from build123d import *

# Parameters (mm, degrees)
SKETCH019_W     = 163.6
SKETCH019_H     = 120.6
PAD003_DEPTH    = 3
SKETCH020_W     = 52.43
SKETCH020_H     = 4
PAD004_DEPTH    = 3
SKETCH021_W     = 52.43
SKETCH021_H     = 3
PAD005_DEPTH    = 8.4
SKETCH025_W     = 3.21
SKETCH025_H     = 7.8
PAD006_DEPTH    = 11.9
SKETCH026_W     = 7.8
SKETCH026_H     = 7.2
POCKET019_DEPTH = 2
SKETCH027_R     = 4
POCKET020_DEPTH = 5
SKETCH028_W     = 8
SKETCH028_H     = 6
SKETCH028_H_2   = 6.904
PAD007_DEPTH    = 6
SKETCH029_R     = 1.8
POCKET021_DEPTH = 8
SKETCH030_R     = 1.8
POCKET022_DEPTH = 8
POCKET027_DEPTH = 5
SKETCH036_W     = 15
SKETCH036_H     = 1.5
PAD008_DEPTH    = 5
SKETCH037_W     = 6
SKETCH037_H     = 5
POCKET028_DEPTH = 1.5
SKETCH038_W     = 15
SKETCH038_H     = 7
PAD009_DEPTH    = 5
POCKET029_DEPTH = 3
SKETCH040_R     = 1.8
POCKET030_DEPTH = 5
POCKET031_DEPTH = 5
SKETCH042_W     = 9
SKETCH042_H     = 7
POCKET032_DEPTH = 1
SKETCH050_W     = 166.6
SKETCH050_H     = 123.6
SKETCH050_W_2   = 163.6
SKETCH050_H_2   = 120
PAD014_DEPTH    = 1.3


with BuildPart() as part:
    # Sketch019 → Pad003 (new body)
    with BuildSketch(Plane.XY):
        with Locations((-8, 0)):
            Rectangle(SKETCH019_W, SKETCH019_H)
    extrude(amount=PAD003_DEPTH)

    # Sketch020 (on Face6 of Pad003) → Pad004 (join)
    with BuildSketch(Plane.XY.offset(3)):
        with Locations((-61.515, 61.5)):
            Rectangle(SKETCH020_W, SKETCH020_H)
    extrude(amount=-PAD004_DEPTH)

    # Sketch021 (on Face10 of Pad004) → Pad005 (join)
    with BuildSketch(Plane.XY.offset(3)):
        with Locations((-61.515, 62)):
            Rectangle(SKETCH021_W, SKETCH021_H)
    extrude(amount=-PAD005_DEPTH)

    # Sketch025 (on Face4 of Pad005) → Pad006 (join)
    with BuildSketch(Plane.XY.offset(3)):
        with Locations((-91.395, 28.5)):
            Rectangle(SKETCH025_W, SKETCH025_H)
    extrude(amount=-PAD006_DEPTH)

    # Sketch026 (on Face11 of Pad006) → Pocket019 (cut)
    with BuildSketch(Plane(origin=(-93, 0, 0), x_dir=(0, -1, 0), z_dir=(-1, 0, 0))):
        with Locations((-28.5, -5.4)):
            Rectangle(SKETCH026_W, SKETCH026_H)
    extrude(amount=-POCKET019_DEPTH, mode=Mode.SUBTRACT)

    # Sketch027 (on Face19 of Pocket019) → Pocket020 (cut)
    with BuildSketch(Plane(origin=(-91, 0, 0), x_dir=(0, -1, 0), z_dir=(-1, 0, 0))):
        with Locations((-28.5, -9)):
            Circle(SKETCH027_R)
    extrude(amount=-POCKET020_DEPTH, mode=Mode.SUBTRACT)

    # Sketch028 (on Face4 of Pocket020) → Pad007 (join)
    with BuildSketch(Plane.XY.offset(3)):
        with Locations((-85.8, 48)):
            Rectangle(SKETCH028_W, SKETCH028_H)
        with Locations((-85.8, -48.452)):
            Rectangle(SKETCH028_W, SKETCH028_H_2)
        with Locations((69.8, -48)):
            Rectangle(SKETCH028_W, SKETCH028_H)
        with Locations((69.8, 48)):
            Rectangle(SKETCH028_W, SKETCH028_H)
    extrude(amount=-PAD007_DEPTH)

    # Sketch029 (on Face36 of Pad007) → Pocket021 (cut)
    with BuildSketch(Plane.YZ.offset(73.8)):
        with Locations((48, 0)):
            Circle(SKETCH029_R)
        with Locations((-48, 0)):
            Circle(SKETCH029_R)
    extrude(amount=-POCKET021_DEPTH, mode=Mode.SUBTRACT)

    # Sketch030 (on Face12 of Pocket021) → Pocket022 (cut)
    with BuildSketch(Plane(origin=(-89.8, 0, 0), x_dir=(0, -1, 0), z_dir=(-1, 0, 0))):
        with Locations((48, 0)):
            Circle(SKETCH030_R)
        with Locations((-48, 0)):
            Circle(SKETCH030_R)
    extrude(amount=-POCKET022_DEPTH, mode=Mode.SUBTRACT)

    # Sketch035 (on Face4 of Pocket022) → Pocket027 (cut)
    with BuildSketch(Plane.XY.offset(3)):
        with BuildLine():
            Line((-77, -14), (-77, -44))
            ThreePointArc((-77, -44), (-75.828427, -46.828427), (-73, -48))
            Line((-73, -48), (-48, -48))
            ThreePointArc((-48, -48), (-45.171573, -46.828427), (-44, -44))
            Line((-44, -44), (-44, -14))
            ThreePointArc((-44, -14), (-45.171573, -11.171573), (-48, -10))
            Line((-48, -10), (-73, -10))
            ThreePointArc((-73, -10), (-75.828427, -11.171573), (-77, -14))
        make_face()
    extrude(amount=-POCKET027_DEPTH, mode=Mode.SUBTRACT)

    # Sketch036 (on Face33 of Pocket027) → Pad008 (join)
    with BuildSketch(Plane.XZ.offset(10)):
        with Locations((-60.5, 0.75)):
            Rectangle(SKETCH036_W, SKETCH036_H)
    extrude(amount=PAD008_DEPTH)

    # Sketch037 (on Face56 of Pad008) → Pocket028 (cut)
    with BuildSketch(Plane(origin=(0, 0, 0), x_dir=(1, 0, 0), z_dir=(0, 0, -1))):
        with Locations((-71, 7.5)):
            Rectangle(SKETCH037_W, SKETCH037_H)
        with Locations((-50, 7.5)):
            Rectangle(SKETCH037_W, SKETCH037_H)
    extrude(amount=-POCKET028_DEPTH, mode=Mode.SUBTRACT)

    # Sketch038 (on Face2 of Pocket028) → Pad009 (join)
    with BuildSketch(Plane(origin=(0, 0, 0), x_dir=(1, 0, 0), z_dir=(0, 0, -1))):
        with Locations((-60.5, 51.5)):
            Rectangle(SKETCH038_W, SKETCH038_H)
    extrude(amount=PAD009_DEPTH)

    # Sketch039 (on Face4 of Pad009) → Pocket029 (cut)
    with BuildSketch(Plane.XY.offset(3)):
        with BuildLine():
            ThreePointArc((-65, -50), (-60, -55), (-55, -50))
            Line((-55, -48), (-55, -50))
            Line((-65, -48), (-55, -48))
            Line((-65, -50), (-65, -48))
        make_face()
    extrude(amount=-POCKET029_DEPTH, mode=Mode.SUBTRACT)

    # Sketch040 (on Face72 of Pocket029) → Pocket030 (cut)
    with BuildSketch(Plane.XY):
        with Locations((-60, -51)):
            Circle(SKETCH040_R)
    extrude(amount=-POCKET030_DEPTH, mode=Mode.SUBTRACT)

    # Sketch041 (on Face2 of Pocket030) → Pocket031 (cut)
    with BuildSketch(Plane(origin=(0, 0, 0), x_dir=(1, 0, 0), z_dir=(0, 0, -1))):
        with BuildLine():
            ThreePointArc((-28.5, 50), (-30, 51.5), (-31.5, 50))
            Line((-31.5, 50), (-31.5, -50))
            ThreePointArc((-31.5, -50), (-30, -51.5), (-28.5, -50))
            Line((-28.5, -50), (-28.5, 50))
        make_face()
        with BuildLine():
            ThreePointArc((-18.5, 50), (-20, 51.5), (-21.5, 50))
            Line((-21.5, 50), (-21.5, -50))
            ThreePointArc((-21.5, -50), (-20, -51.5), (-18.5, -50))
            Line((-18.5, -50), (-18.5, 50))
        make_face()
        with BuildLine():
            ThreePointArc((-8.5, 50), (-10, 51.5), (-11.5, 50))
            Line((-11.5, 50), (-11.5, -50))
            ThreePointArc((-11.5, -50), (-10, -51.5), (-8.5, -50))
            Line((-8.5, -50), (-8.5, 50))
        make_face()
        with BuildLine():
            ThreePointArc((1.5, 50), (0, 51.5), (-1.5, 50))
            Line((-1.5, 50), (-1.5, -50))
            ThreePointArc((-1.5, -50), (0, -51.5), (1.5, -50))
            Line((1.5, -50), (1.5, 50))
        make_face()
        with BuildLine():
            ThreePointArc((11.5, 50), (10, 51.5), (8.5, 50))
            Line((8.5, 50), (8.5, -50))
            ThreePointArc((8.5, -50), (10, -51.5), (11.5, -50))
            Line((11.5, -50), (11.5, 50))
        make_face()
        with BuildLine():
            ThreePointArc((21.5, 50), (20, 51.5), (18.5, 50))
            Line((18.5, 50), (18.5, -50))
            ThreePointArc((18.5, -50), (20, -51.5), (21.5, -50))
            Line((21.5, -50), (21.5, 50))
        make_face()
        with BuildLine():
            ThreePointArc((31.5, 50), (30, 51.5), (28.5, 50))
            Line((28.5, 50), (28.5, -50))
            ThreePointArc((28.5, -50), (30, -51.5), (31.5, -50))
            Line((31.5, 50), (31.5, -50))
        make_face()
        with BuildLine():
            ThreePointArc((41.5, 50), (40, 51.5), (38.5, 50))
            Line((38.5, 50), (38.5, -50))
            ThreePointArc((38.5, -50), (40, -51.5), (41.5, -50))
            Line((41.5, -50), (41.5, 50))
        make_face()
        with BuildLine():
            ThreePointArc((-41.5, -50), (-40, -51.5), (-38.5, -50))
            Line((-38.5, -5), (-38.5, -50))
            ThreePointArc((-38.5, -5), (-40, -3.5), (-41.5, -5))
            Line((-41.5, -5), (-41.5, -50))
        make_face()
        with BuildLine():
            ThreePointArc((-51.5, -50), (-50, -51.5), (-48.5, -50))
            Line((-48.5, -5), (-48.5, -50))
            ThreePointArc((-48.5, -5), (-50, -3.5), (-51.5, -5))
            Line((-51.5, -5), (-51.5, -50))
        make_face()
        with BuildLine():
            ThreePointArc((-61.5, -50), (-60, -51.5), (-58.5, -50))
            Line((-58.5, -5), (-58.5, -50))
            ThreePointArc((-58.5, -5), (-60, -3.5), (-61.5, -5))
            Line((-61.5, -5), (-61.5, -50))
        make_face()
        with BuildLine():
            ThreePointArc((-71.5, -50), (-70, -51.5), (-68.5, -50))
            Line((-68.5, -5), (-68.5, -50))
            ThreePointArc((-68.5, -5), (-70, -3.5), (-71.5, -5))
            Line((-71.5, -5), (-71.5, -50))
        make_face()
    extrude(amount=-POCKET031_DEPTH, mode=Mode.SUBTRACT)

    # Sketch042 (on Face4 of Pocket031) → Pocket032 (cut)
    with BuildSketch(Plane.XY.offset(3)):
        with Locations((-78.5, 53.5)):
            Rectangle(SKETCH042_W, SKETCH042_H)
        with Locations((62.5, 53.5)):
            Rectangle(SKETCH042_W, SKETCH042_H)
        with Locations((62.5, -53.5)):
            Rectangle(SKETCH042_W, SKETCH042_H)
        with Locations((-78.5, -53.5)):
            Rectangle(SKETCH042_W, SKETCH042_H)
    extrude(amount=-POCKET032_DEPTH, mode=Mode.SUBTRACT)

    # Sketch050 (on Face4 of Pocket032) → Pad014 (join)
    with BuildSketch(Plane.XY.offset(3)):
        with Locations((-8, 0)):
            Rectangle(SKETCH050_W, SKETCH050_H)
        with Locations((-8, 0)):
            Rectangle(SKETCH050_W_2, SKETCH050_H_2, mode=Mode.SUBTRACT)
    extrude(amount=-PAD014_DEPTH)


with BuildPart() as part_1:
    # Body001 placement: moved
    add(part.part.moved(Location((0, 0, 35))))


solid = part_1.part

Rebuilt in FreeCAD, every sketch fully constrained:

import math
import FreeCAD as App
import Part
import Sketcher
Q = App.Units.Quantity


def add_polygon(sketch, points):
    """Adds a closed chain of lines whose ends are joined by coincident constraints."""
    first, n = sketch.GeometryCount, len(points)
    for a, b in zip(points, points[1:] + points[:1]):
        sketch.addGeometry(Part.LineSegment(App.Vector(*a, 0), App.Vector(*b, 0)), False)
    for i in range(n):
        sketch.addConstraint(Sketcher.Constraint("Coincident", first + i, 2, first + (i + 1) % n, 1))

doc = App.newDocument("Part")
body = doc.addObject("PartDesign::Body", "Body")

# Sketch on XY plane
sketch1 = doc.addObject("Sketcher::SketchObject", "Sketch")
body.addObject(sketch1)
sketch1.AttachmentSupport = (doc.XY_Plane, [""])
sketch1.MapMode = "FlatFace"
add_polygon(sketch1, [(-90, 60), (-90, -60), (74, -60), (74, 60)])  # lines 0-3
sketch1.addConstraint([
    Sketcher.Constraint("Vertical", 0),
    Sketcher.Constraint("Horizontal", 1),
    Sketcher.Constraint("Vertical", 2),
    Sketcher.Constraint("Horizontal", 3),
    Sketcher.Constraint("DistanceX", 1, 1, 1, 2, Q("163.6 mm")),
    Sketcher.Constraint("DistanceY", 0, 2, 0, 1, Q("120.6 mm")),
    Sketcher.Constraint("DistanceX", 0, 2, -1, 1, Q("89.8 mm")),
    Sketcher.Constraint("DistanceY", 0, 2, -1, 1, Q("60.3 mm")),
])
pad1 = doc.addObject("PartDesign::Pad", "Pad")
body.addObject(pad1)
pad1.Profile = sketch1
pad1.Length = 3

# Sketch on XY plane
sketch2 = doc.addObject("Sketcher::SketchObject", "Sketch001")
body.addObject(sketch2)
sketch2.AttachmentSupport = (doc.XY_Plane, [""])
sketch2.MapMode = "FlatFace"
sketch2.AttachmentOffset = App.Placement(App.Vector(0, 0, 3), App.Rotation())
add_polygon(sketch2, [(-87.7, 63.5), (-87.7, 59.5), (-35.3, 59.5), (-35.3, 63.5)])  # lines 0-3
sketch2.addConstraint([
    Sketcher.Constraint("Vertical", 0),
    Sketcher.Constraint("Horizontal", 1),
    Sketcher.Constraint("Vertical", 2),
    Sketcher.Constraint("Horizontal", 3),
    Sketcher.Constraint("DistanceY", 0, 2, 0, 1, Q("4 mm")),
    Sketcher.Constraint("DistanceX", 1, 1, 1, 2, Q("52.43 mm")),
    Sketcher.Constraint("DistanceY", -1, 1, 0, 2, Q("59.5 mm")),
    Sketcher.Constraint("DistanceX", 1, 2, -1, 1, Q("35.3 mm")),
])
pad2 = doc.addObject("PartDesign::Pad", "Pad001")
body.addObject(pad2)
pad2.Profile = sketch2
pad2.Length = 3
pad2.Reversed = True

# Sketch on XY plane
sketch3 = doc.addObject("Sketcher::SketchObject", "Sketch002")
body.addObject(sketch3)
sketch3.AttachmentSupport = (doc.XY_Plane, [""])
sketch3.MapMode = "FlatFace"
sketch3.AttachmentOffset = App.Placement(App.Vector(0, 0, 3), App.Rotation())
add_polygon(sketch3, [(-87.7, 63.5), (-87.7, 60.5), (-35.3, 60.5), (-35.3, 63.5)])  # lines 0-3
sketch3.addConstraint([
    Sketcher.Constraint("Vertical", 0),
    Sketcher.Constraint("Horizontal", 1),
    Sketcher.Constraint("Vertical", 2),
    Sketcher.Constraint("Horizontal", 3),
    Sketcher.Constraint("DistanceY", 0, 2, 0, 1, Q("3 mm")),
    Sketcher.Constraint("DistanceX", 1, 1, 1, 2, Q("52.43 mm")),
    Sketcher.Constraint("DistanceY", -1, 1, 0, 2, Q("60.5 mm")),
    Sketcher.Constraint("DistanceX", 1, 2, -1, 1, Q("35.3 mm")),
])
pad3 = doc.addObject("PartDesign::Pad", "Pad002")
body.addObject(pad3)
pad3.Profile = sketch3
pad3.Length = 8.4
pad3.Reversed = True

# Sketch on XY plane
sketch4 = doc.addObject("Sketcher::SketchObject", "Sketch003")
body.addObject(sketch4)
sketch4.AttachmentSupport = (doc.XY_Plane, [""])
sketch4.MapMode = "FlatFace"
sketch4.AttachmentOffset = App.Placement(App.Vector(0, 0, 3), App.Rotation())
add_polygon(sketch4, [(-93, 32.4), (-93, 24.6), (-89.8, 24.6), (-89.8, 32.4)])  # lines 0-3
sketch4.addConstraint([
    Sketcher.Constraint("Vertical", 0),
    Sketcher.Constraint("Horizontal", 1),
    Sketcher.Constraint("Vertical", 2),
    Sketcher.Constraint("Horizontal", 3),
    Sketcher.Constraint("DistanceY", 0, 2, 0, 1, Q("7.8 mm")),
    Sketcher.Constraint("DistanceX", 0, 2, -1, 1, Q("93 mm")),
    Sketcher.Constraint("DistanceX", 1, 1, 1, 2, Q("3.21 mm")),
    Sketcher.Constraint("DistanceY", -1, 1, 0, 2, Q("24.6 mm")),
])
pad4 = doc.addObject("PartDesign::Pad", "Pad003")
body.addObject(pad4)
pad4.Profile = sketch4
pad4.Length = 11.9
pad4.Reversed = True

# Sketch on YZ plane
sketch5 = doc.addObject("Sketcher::SketchObject", "Sketch004")
body.addObject(sketch5)
sketch5.AttachmentSupport = (doc.YZ_Plane, [""])
sketch5.MapMode = "FlatFace"
sketch5.AttachmentOffset = App.Placement(App.Vector(0, 0, -93), App.Rotation())
add_polygon(sketch5, [(32, -2), (32, -9), (25, -9), (25, -2)])  # lines 0-3
sketch5.addConstraint([
    Sketcher.Constraint("Vertical", 0),
    Sketcher.Constraint("Horizontal", 1),
    Sketcher.Constraint("Vertical", 2),
    Sketcher.Constraint("Horizontal", 3),
    Sketcher.Constraint("DistanceX", 1, 2, 1, 1, Q("7.8 mm")),
    Sketcher.Constraint("DistanceY", 0, 2, 0, 1, Q("7.2 mm")),
    Sketcher.Constraint("DistanceY", 0, 2, -1, 1, Q("9 mm")),
    Sketcher.Constraint("DistanceX", -1, 1, 0, 2, Q("32.4 mm")),
])
pocket1 = doc.addObject("PartDesign::Pocket", "Pocket")
body.addObject(pocket1)
pocket1.Profile = sketch5
pocket1.Length = 2
pocket1.Reversed = True

# Sketch on YZ plane
sketch6 = doc.addObject("Sketcher::SketchObject", "Sketch005")
body.addObject(sketch6)
sketch6.AttachmentSupport = (doc.YZ_Plane, [""])
sketch6.MapMode = "FlatFace"
sketch6.AttachmentOffset = App.Placement(App.Vector(0, 0, -91), App.Rotation())
sketch6.addGeometry(Part.Circle(App.Vector(28.5, -9, 0), App.Vector(0, 0, 1), 4), False)
sketch6.addConstraint([
    Sketcher.Constraint("Diameter", 0, Q("8 mm")),
    Sketcher.Constraint("DistanceY", 0, 3, -1, 1, Q("9 mm")),
    Sketcher.Constraint("DistanceX", -1, 1, 0, 3, Q("28.5 mm")),
])
pocket2 = doc.addObject("PartDesign::Pocket", "Pocket001")
body.addObject(pocket2)
pocket2.Profile = sketch6
pocket2.Length = 5
pocket2.Reversed = True

# Sketch on XY plane
sketch7 = doc.addObject("Sketcher::SketchObject", "Sketch006")
body.addObject(sketch7)
sketch7.AttachmentSupport = (doc.XY_Plane, [""])
sketch7.MapMode = "FlatFace"
sketch7.AttachmentOffset = App.Placement(App.Vector(0, 0, 3), App.Rotation())
add_polygon(sketch7, [(-90, 51), (-90, 45), (-82, 45), (-82, 51)])  # lines 0-3
add_polygon(sketch7, [(-90, -45), (-90, -52), (-82, -52), (-82, -45)])  # lines 4-7
add_polygon(sketch7, [(66, -45), (66, -51), (74, -51), (74, -45)])  # lines 8-11
add_polygon(sketch7, [(66, 51), (66, 45), (74, 45), (74, 51)])  # lines 12-15
sketch7.addConstraint([
    Sketcher.Constraint("Vertical", 0),
    Sketcher.Constraint("Horizontal", 1),
    Sketcher.Constraint("Vertical", 2),
    Sketcher.Constraint("Horizontal", 3),
    Sketcher.Constraint("Vertical", 4),
    Sketcher.Constraint("Horizontal", 5),
    Sketcher.Constraint("Vertical", 6),
    Sketcher.Constraint("Horizontal", 7),
    Sketcher.Constraint("Vertical", 8),
    Sketcher.Constraint("Horizontal", 9),
    Sketcher.Constraint("Vertical", 10),
    Sketcher.Constraint("Horizontal", 11),
    Sketcher.Constraint("Vertical", 12),
    Sketcher.Constraint("Horizontal", 13),
    Sketcher.Constraint("Vertical", 14),
    Sketcher.Constraint("Horizontal", 15),
    Sketcher.Constraint("Symmetric", 1, 2, 6, 2, -1),
    Sketcher.Constraint("Symmetric", 11, 2, 12, 2, -1),
    Sketcher.Constraint("Symmetric", 9, 2, 14, 2, -1),
    Sketcher.Constraint("Horizontal", 7, 2, 10, 2),
    Sketcher.Constraint("Horizontal", 3, 2, 14, 2),
    Sketcher.Constraint("Vertical", 3, 2, 4, 2),
    Sketcher.Constraint("Equal", 7, 9),
    Sketcher.Constraint("DistanceX", 1, 1, 1, 2, Q("8 mm")),
    Sketcher.Constraint("DistanceY", 0, 2, 0, 1, Q("6 mm")),
    Sketcher.Constraint("DistanceY", -1, 1, 0, 2, Q("45 mm")),
    Sketcher.Constraint("DistanceX", 0, 2, -1, 1, Q("89.8 mm")),
    Sketcher.Constraint("DistanceX", -1, 1, 8, 2, Q("65.8 mm")),
    Sketcher.Constraint("DistanceY", 4, 2, 4, 1, Q("6.904 mm")),
])
pad5 = doc.addObject("PartDesign::Pad", "Pad004")
body.addObject(pad5)
pad5.Profile = sketch7
pad5.Length = 6
pad5.Reversed = True

# Sketch on YZ plane
sketch8 = doc.addObject("Sketcher::SketchObject", "Sketch007")
body.addObject(sketch8)
sketch8.AttachmentSupport = (doc.YZ_Plane, [""])
sketch8.MapMode = "FlatFace"
sketch8.AttachmentOffset = App.Placement(App.Vector(0, 0, 73.8), App.Rotation())
sketch8.addGeometry([
    Part.Circle(App.Vector(48, 0, 0), App.Vector(0, 0, 1), 1.8),
    Part.Circle(App.Vector(-48, 0, 0), App.Vector(0, 0, 1), 1.8),
], False)
sketch8.addConstraint([
    Sketcher.Constraint("Equal", 0, 1),
    Sketcher.Constraint("Symmetric", 0, 3, 1, 3, -1, 1),
    Sketcher.Constraint("PointOnObject", 0, 3, -1),
    Sketcher.Constraint("Diameter", 0, Q("3.6 mm")),
    Sketcher.Constraint("DistanceX", -1, 1, 0, 3, Q("48 mm")),
])
pocket3 = doc.addObject("PartDesign::Pocket", "Pocket002")
body.addObject(pocket3)
pocket3.Profile = sketch8
pocket3.Length = 8

# Sketch on YZ plane
sketch9 = doc.addObject("Sketcher::SketchObject", "Sketch008")
body.addObject(sketch9)
sketch9.AttachmentSupport = (doc.YZ_Plane, [""])
sketch9.MapMode = "FlatFace"
sketch9.AttachmentOffset = App.Placement(App.Vector(0, 0, -89.8), App.Rotation())
sketch9.addGeometry([
    Part.Circle(App.Vector(-48, 0, 0), App.Vector(0, 0, 1), 1.8),
    Part.Circle(App.Vector(48, 0, 0), App.Vector(0, 0, 1), 1.8),
], False)
sketch9.addConstraint([
    Sketcher.Constraint("Equal", 0, 1),
    Sketcher.Constraint("Symmetric", 0, 3, 1, 3, -1, 1),
    Sketcher.Constraint("PointOnObject", 0, 3, -1),
    Sketcher.Constraint("Diameter", 0, Q("3.6 mm")),
    Sketcher.Constraint("DistanceX", 0, 3, -1, 1, Q("48 mm")),
])
pocket4 = doc.addObject("PartDesign::Pocket", "Pocket003")
body.addObject(pocket4)
pocket4.Profile = sketch9
pocket4.Length = 8
pocket4.Reversed = True

# Sketch on XY plane
sketch10 = doc.addObject("Sketcher::SketchObject", "Sketch009")
body.addObject(sketch10)
sketch10.AttachmentSupport = (doc.XY_Plane, [""])
sketch10.MapMode = "FlatFace"
sketch10.AttachmentOffset = App.Placement(App.Vector(0, 0, 3), App.Rotation())
sketch10.addGeometry([
    Part.LineSegment(App.Vector(-77, -14, 0), App.Vector(-77, -44, 0)),  # 0
    Part.ArcOfCircle(Part.Circle(App.Vector(-73, -44, 0), App.Vector(0, 0, 1), 4), math.radians(-180), math.radians(-90)),  # 1
    Part.LineSegment(App.Vector(-73, -48, 0), App.Vector(-48, -48, 0)),  # 2
    Part.ArcOfCircle(Part.Circle(App.Vector(-48, -44, 0), App.Vector(0, 0, 1), 4), math.radians(-90), math.radians(0)),  # 3
    Part.LineSegment(App.Vector(-44, -44, 0), App.Vector(-44, -14, 0)),  # 4
    Part.ArcOfCircle(Part.Circle(App.Vector(-48, -14, 0), App.Vector(0, 0, 1), 4), math.radians(0), math.radians(90)),  # 5
    Part.LineSegment(App.Vector(-48, -10, 0), App.Vector(-73, -10, 0)),  # 6
    Part.ArcOfCircle(Part.Circle(App.Vector(-73, -14, 0), App.Vector(0, 0, 1), 4), math.radians(90), math.radians(180)),  # 7
], False)
sketch10.addConstraint([
    Sketcher.Constraint("Tangent", 0, 2, 1, 1),
    Sketcher.Constraint("Tangent", 1, 2, 2, 1),
    Sketcher.Constraint("Tangent", 2, 2, 3, 1),
    Sketcher.Constraint("Tangent", 3, 2, 4, 1),
    Sketcher.Constraint("Tangent", 4, 2, 5, 1),
    Sketcher.Constraint("Tangent", 5, 2, 6, 1),
    Sketcher.Constraint("Tangent", 6, 2, 7, 1),
    Sketcher.Constraint("Tangent", 7, 2, 0, 1),
    Sketcher.Constraint("Vertical", 0),
    Sketcher.Constraint("Horizontal", 2),
    Sketcher.Constraint("Vertical", 4),
    Sketcher.Constraint("Horizontal", 6),
    Sketcher.Constraint("Equal", 1, 3),
    Sketcher.Constraint("Equal", 3, 5),
    Sketcher.Constraint("Equal", 5, 7),
    Sketcher.Constraint("Radius", 1, Q("4 mm")),
    Sketcher.Constraint("DistanceX", 2, 1, 2, 2, Q("25 mm")),
    Sketcher.Constraint("DistanceY", 0, 2, 0, 1, Q("30 mm")),
    Sketcher.Constraint("DistanceX", 1, 3, -1, 1, Q("73 mm")),
    Sketcher.Constraint("DistanceY", 1, 3, -1, 1, Q("44 mm")),
])
pocket5 = doc.addObject("PartDesign::Pocket", "Pocket004")
body.addObject(pocket5)
pocket5.Profile = sketch10
pocket5.Length = 5

# Sketch on XZ plane
sketch11 = doc.addObject("Sketcher::SketchObject", "Sketch010")
body.addObject(sketch11)
sketch11.AttachmentSupport = (doc.XZ_Plane, [""])
sketch11.MapMode = "FlatFace"
sketch11.AttachmentOffset = App.Placement(App.Vector(0, 0, 10), App.Rotation())
add_polygon(sketch11, [(-68, 1.5), (-68, 0), (-53, 0), (-53, 1.5)])  # lines 0-3
sketch11.addConstraint([
    Sketcher.Constraint("Vertical", 0),
    Sketcher.Constraint("Horizontal", 1),
    Sketcher.Constraint("Vertical", 2),
    Sketcher.Constraint("Horizontal", 3),
    Sketcher.Constraint("PointOnObject", 0, 2, -1),
    Sketcher.Constraint("DistanceX", 1, 1, 1, 2, Q("15 mm")),
    Sketcher.Constraint("DistanceY", 0, 2, 0, 1, Q("1.5 mm")),
    Sketcher.Constraint("DistanceX", 0, 2, -1, 1, Q("68 mm")),
])
pad6 = doc.addObject("PartDesign::Pad", "Pad005")
body.addObject(pad6)
pad6.Profile = sketch11
pad6.Length = 5

# Sketch on XY plane
sketch12 = doc.addObject("Sketcher::SketchObject", "Sketch011")
body.addObject(sketch12)
sketch12.AttachmentSupport = (doc.XY_Plane, [""])
sketch12.MapMode = "FlatFace"
add_polygon(sketch12, [(-74, -10), (-74, -5), (-68, -5), (-68, -10)])  # lines 0-3
add_polygon(sketch12, [(-53, -10), (-53, -5), (-47, -5), (-47, -10)])  # lines 4-7
sketch12.addConstraint([
    Sketcher.Constraint("Vertical", 0),
    Sketcher.Constraint("Horizontal", 1),
    Sketcher.Constraint("Vertical", 2),
    Sketcher.Constraint("Horizontal", 3),
    Sketcher.Constraint("Vertical", 4),
    Sketcher.Constraint("Horizontal", 5),
    Sketcher.Constraint("Vertical", 6),
    Sketcher.Constraint("Horizontal", 7),
    Sketcher.Constraint("Horizontal", 1, 2, 4, 2),
    Sketcher.Constraint("Horizontal", 3, 2, 6, 2),
    Sketcher.Constraint("Equal", 3, 5),
    Sketcher.Constraint("DistanceX", 1, 1, 1, 2, Q("6 mm")),
    Sketcher.Constraint("DistanceY", 0, 1, 0, 2, Q("5 mm")),
    Sketcher.Constraint("DistanceX", 0, 2, -1, 1, Q("74 mm")),
    Sketcher.Constraint("DistanceY", 0, 2, -1, 1, Q("5 mm")),
    Sketcher.Constraint("DistanceX", 4, 2, -1, 1, Q("53 mm")),
])
pocket6 = doc.addObject("PartDesign::Pocket", "Pocket005")
body.addObject(pocket6)
pocket6.Profile = sketch12
pocket6.Length = 1.5
pocket6.Reversed = True

# Sketch on XY plane
sketch13 = doc.addObject("Sketcher::SketchObject", "Sketch012")
body.addObject(sketch13)
sketch13.AttachmentSupport = (doc.XY_Plane, [""])
sketch13.MapMode = "FlatFace"
add_polygon(sketch13, [(-68, -55), (-68, -48), (-53, -48), (-53, -55)])  # lines 0-3
sketch13.addConstraint([
    Sketcher.Constraint("Vertical", 0),
    Sketcher.Constraint("Horizontal", 1),
    Sketcher.Constraint("Vertical", 2),
    Sketcher.Constraint("Horizontal", 3),
    Sketcher.Constraint("DistanceX", 1, 1, 1, 2, Q("15 mm")),
    Sketcher.Constraint("DistanceY", 0, 1, 0, 2, Q("7 mm")),
    Sketcher.Constraint("DistanceX", 0, 2, -1, 1, Q("68 mm")),
    Sketcher.Constraint("DistanceY", 0, 2, -1, 1, Q("48 mm")),
])
pad7 = doc.addObject("PartDesign::Pad", "Pad006")
body.addObject(pad7)
pad7.Profile = sketch13
pad7.Length = 5
pad7.Reversed = True

# Sketch on XY plane
sketch14 = doc.addObject("Sketcher::SketchObject", "Sketch013")
body.addObject(sketch14)
sketch14.AttachmentSupport = (doc.XY_Plane, [""])
sketch14.MapMode = "FlatFace"
sketch14.AttachmentOffset = App.Placement(App.Vector(0, 0, 3), App.Rotation())
sketch14.addGeometry([
    Part.ArcOfCircle(Part.Circle(App.Vector(-60, -50, 0), App.Vector(0, 0, 1), 5), math.radians(180), math.radians(360)),
    Part.LineSegment(App.Vector(-55, -50, 0), App.Vector(-55, -48, 0)),
    Part.LineSegment(App.Vector(-55, -48, 0), App.Vector(-65, -48, 0)),
    Part.LineSegment(App.Vector(-65, -48, 0), App.Vector(-65, -50, 0)),
], False)
sketch14.addConstraint([
    Sketcher.Constraint("Tangent", 0, 2, 1, 1),
    Sketcher.Constraint("Coincident", 1, 2, 2, 1),
    Sketcher.Constraint("Coincident", 2, 2, 3, 1),
    Sketcher.Constraint("Tangent", 3, 2, 0, 1),
    Sketcher.Constraint("Vertical", 1),
    Sketcher.Constraint("Horizontal", 2),
    Sketcher.Constraint("Vertical", 3),
    Sketcher.Constraint("Radius", 0, Q("5 mm")),
    Sketcher.Constraint("DistanceY", 1, 1, 1, 2, Q("2 mm")),
    Sketcher.Constraint("DistanceX", 0, 3, -1, 1, Q("60 mm")),
    Sketcher.Constraint("DistanceY", 0, 3, -1, 1, Q("50 mm")),
])
pocket7 = doc.addObject("PartDesign::Pocket", "Pocket006")
body.addObject(pocket7)
pocket7.Profile = sketch14
pocket7.Length = 3

# Sketch on XY plane
sketch15 = doc.addObject("Sketcher::SketchObject", "Sketch014")
body.addObject(sketch15)
sketch15.AttachmentSupport = (doc.XY_Plane, [""])
sketch15.MapMode = "FlatFace"
sketch15.addGeometry(Part.Circle(App.Vector(-60, -51, 0), App.Vector(0, 0, 1), 1.8), False)
sketch15.addConstraint([
    Sketcher.Constraint("Diameter", 0, Q("3.6 mm")),
    Sketcher.Constraint("DistanceX", 0, 3, -1, 1, Q("60 mm")),
    Sketcher.Constraint("DistanceY", 0, 3, -1, 1, Q("51 mm")),
])
pocket8 = doc.addObject("PartDesign::Pocket", "Pocket007")
body.addObject(pocket8)
pocket8.Profile = sketch15
pocket8.Length = 5

# Sketch on XY plane
sketch16 = doc.addObject("Sketcher::SketchObject", "Sketch015")
body.addObject(sketch16)
sketch16.AttachmentSupport = (doc.XY_Plane, [""])
sketch16.MapMode = "FlatFace"
sketch16.addGeometry([
    Part.ArcOfCircle(Part.Circle(App.Vector(-30, -50, 0), App.Vector(0, 0, 1), 1.5), math.radians(180), math.radians(360)),  # 0
    Part.LineSegment(App.Vector(-31.5, -50, 0), App.Vector(-31.5, 50, 0)),  # 1
    Part.ArcOfCircle(Part.Circle(App.Vector(-30, 50, 0), App.Vector(0, 0, 1), 1.5), math.radians(0), math.radians(180)),  # 2
    Part.LineSegment(App.Vector(-28.5, 50, 0), App.Vector(-28.5, -50, 0)),  # 3
    Part.ArcOfCircle(Part.Circle(App.Vector(-20, -50, 0), App.Vector(0, 0, 1), 1.5), math.radians(180), math.radians(360)),  # 4
    Part.LineSegment(App.Vector(-21.5, -50, 0), App.Vector(-21.5, 50, 0)),  # 5
    Part.ArcOfCircle(Part.Circle(App.Vector(-20, 50, 0), App.Vector(0, 0, 1), 1.5), math.radians(0), math.radians(180)),  # 6
    Part.LineSegment(App.Vector(-18.5, 50, 0), App.Vector(-18.5, -50, 0)),  # 7
    Part.ArcOfCircle(Part.Circle(App.Vector(-10, -50, 0), App.Vector(0, 0, 1), 1.5), math.radians(180), math.radians(360)),  # 8
    Part.LineSegment(App.Vector(-11.5, -50, 0), App.Vector(-11.5, 50, 0)),  # 9
    Part.ArcOfCircle(Part.Circle(App.Vector(-10, 50, 0), App.Vector(0, 0, 1), 1.5), math.radians(0), math.radians(180)),  # 10
    Part.LineSegment(App.Vector(-8.5, 50, 0), App.Vector(-8.5, -50, 0)),  # 11
    Part.ArcOfCircle(Part.Circle(App.Vector(0, -50, 0), App.Vector(0, 0, 1), 1.5), math.radians(180), math.radians(360)),  # 12
    Part.LineSegment(App.Vector(-1.5, -50, 0), App.Vector(-1.5, 50, 0)),  # 13
    Part.ArcOfCircle(Part.Circle(App.Vector(0, 50, 0), App.Vector(0, 0, 1), 1.5), math.radians(0), math.radians(180)),  # 14
    Part.LineSegment(App.Vector(1.5, 50, 0), App.Vector(1.5, -50, 0)),  # 15
    Part.ArcOfCircle(Part.Circle(App.Vector(10, -50, 0), App.Vector(0, 0, 1), 1.5), math.radians(180), math.radians(360)),  # 16
    Part.LineSegment(App.Vector(8.5, -50, 0), App.Vector(8.5, 50, 0)),  # 17
    Part.ArcOfCircle(Part.Circle(App.Vector(10, 50, 0), App.Vector(0, 0, 1), 1.5), math.radians(0), math.radians(180)),  # 18
    Part.LineSegment(App.Vector(11.5, 50, 0), App.Vector(11.5, -50, 0)),  # 19
    Part.ArcOfCircle(Part.Circle(App.Vector(20, -50, 0), App.Vector(0, 0, 1), 1.5), math.radians(180), math.radians(360)),  # 20
    Part.LineSegment(App.Vector(18.5, -50, 0), App.Vector(18.5, 50, 0)),  # 21
    Part.ArcOfCircle(Part.Circle(App.Vector(20, 50, 0), App.Vector(0, 0, 1), 1.5), math.radians(0), math.radians(180)),  # 22
    Part.LineSegment(App.Vector(21.5, 50, 0), App.Vector(21.5, -50, 0)),  # 23
    Part.ArcOfCircle(Part.Circle(App.Vector(30, -50, 0), App.Vector(0, 0, 1), 1.5), math.radians(180), math.radians(360)),  # 24
    Part.LineSegment(App.Vector(28.5, -50, 0), App.Vector(28.5, 50, 0)),  # 25
    Part.ArcOfCircle(Part.Circle(App.Vector(30, 50, 0), App.Vector(0, 0, 1), 1.5), math.radians(0), math.radians(180)),  # 26
    Part.LineSegment(App.Vector(31.5, 50, 0), App.Vector(31.5, -50, 0)),  # 27
    Part.ArcOfCircle(Part.Circle(App.Vector(40, -50, 0), App.Vector(0, 0, 1), 1.5), math.radians(180), math.radians(360)),  # 28
    Part.LineSegment(App.Vector(38.5, -50, 0), App.Vector(38.5, 50, 0)),  # 29
    Part.ArcOfCircle(Part.Circle(App.Vector(40, 50, 0), App.Vector(0, 0, 1), 1.5), math.radians(0), math.radians(180)),  # 30
    Part.LineSegment(App.Vector(41.5, 50, 0), App.Vector(41.5, -50, 0)),  # 31
    Part.ArcOfCircle(Part.Circle(App.Vector(-40, 50, 0), App.Vector(0, 0, 1), 1.5), math.radians(0), math.radians(180)),  # 32
    Part.LineSegment(App.Vector(-38.5, 50, 0), App.Vector(-38.5, 5, 0)),  # 33
    Part.ArcOfCircle(Part.Circle(App.Vector(-40, 5, 0), App.Vector(0, 0, 1), 1.5), math.radians(180), math.radians(360)),  # 34
    Part.LineSegment(App.Vector(-41.5, 5, 0), App.Vector(-41.5, 50, 0)),  # 35
    Part.ArcOfCircle(Part.Circle(App.Vector(-50, 50, 0), App.Vector(0, 0, 1), 1.5), math.radians(0), math.radians(180)),  # 36
    Part.LineSegment(App.Vector(-48.5, 50, 0), App.Vector(-48.5, 5, 0)),  # 37
    Part.ArcOfCircle(Part.Circle(App.Vector(-50, 5, 0), App.Vector(0, 0, 1), 1.5), math.radians(180), math.radians(360)),  # 38
    Part.LineSegment(App.Vector(-51.5, 5, 0), App.Vector(-51.5, 50, 0)),  # 39
    Part.ArcOfCircle(Part.Circle(App.Vector(-60, 50, 0), App.Vector(0, 0, 1), 1.5), math.radians(0), math.radians(180)),  # 40
    Part.LineSegment(App.Vector(-58.5, 50, 0), App.Vector(-58.5, 5, 0)),  # 41
    Part.ArcOfCircle(Part.Circle(App.Vector(-60, 5, 0), App.Vector(0, 0, 1), 1.5), math.radians(180), math.radians(360)),  # 42
    Part.LineSegment(App.Vector(-61.5, 5, 0), App.Vector(-61.5, 50, 0)),  # 43
    Part.ArcOfCircle(Part.Circle(App.Vector(-70, 50, 0), App.Vector(0, 0, 1), 1.5), math.radians(0), math.radians(180)),  # 44
    Part.LineSegment(App.Vector(-68.5, 50, 0), App.Vector(-68.5, 5, 0)),  # 45
    Part.ArcOfCircle(Part.Circle(App.Vector(-70, 5, 0), App.Vector(0, 0, 1), 1.5), math.radians(180), math.radians(360)),  # 46
    Part.LineSegment(App.Vector(-71.5, 5, 0), App.Vector(-71.5, 50, 0)),  # 47
], False)
sketch16.addConstraint([
    Sketcher.Constraint("Tangent", 0, 1, 1, 1),
    Sketcher.Constraint("Tangent", 1, 2, 2, 2),
    Sketcher.Constraint("Tangent", 2, 1, 3, 1),
    Sketcher.Constraint("Tangent", 3, 2, 0, 2),
    Sketcher.Constraint("Tangent", 4, 1, 5, 1),
    Sketcher.Constraint("Tangent", 5, 2, 6, 2),
    Sketcher.Constraint("Tangent", 6, 1, 7, 1),
    Sketcher.Constraint("Tangent", 7, 2, 4, 2),
    Sketcher.Constraint("Tangent", 8, 1, 9, 1),
    Sketcher.Constraint("Tangent", 9, 2, 10, 2),
    Sketcher.Constraint("Tangent", 10, 1, 11, 1),
    Sketcher.Constraint("Tangent", 11, 2, 8, 2),
    Sketcher.Constraint("Tangent", 12, 1, 13, 1),
    Sketcher.Constraint("Tangent", 13, 2, 14, 2),
    Sketcher.Constraint("Tangent", 14, 1, 15, 1),
    Sketcher.Constraint("Tangent", 15, 2, 12, 2),
    Sketcher.Constraint("Tangent", 16, 1, 17, 1),
    Sketcher.Constraint("Tangent", 17, 2, 18, 2),
    Sketcher.Constraint("Tangent", 18, 1, 19, 1),
    Sketcher.Constraint("Tangent", 19, 2, 16, 2),
    Sketcher.Constraint("Tangent", 20, 1, 21, 1),
    Sketcher.Constraint("Tangent", 21, 2, 22, 2),
    Sketcher.Constraint("Tangent", 22, 1, 23, 1),
    Sketcher.Constraint("Tangent", 23, 2, 20, 2),
    Sketcher.Constraint("Tangent", 24, 1, 25, 1),
    Sketcher.Constraint("Tangent", 25, 2, 26, 2),
    Sketcher.Constraint("Tangent", 26, 1, 27, 1),
    Sketcher.Constraint("Tangent", 27, 2, 24, 2),
    Sketcher.Constraint("Tangent", 28, 1, 29, 1),
    Sketcher.Constraint("Tangent", 29, 2, 30, 2),
    Sketcher.Constraint("Tangent", 30, 1, 31, 1),
    Sketcher.Constraint("Tangent", 31, 2, 28, 2),
    Sketcher.Constraint("Tangent", 32, 1, 33, 1),
    Sketcher.Constraint("Tangent", 33, 2, 34, 2),
    Sketcher.Constraint("Tangent", 34, 1, 35, 1),
    Sketcher.Constraint("Tangent", 35, 2, 32, 2),
    Sketcher.Constraint("Tangent", 36, 1, 37, 1),
    Sketcher.Constraint("Tangent", 37, 2, 38, 2),
    Sketcher.Constraint("Tangent", 38, 1, 39, 1),
    Sketcher.Constraint("Tangent", 39, 2, 36, 2),
    Sketcher.Constraint("Tangent", 40, 1, 41, 1),
    Sketcher.Constraint("Tangent", 41, 2, 42, 2),
    Sketcher.Constraint("Tangent", 42, 1, 43, 1),
    Sketcher.Constraint("Tangent", 43, 2, 40, 2),
    Sketcher.Constraint("Tangent", 44, 1, 45, 1),
    Sketcher.Constraint("Tangent", 45, 2, 46, 2),
    Sketcher.Constraint("Tangent", 46, 1, 47, 1),
    Sketcher.Constraint("Tangent", 47, 2, 44, 2),
    Sketcher.Constraint("Vertical", 1),
    Sketcher.Constraint("Vertical", 3),
    Sketcher.Constraint("Vertical", 5),
    Sketcher.Constraint("Vertical", 7),
    Sketcher.Constraint("Vertical", 9),
    Sketcher.Constraint("Vertical", 11),
    Sketcher.Constraint("Vertical", 13),
    Sketcher.Constraint("Vertical", 15),
    Sketcher.Constraint("Vertical", 17),
    Sketcher.Constraint("Vertical", 19),
    Sketcher.Constraint("Vertical", 21),
    Sketcher.Constraint("Vertical", 23),
    Sketcher.Constraint("Vertical", 25),
    Sketcher.Constraint("Vertical", 27),
    Sketcher.Constraint("Vertical", 29),
    Sketcher.Constraint("Vertical", 31),
    Sketcher.Constraint("Vertical", 33),
    Sketcher.Constraint("Vertical", 35),
    Sketcher.Constraint("Vertical", 37),
    Sketcher.Constraint("Vertical", 39),
    Sketcher.Constraint("Vertical", 41),
    Sketcher.Constraint("Vertical", 43),
    Sketcher.Constraint("Vertical", 45),
    Sketcher.Constraint("Vertical", 47),
    Sketcher.Constraint("Equal", 2, 4),
    Sketcher.Constraint("Equal", 6, 8),
    Sketcher.Constraint("Equal", 10, 12),
    Sketcher.Constraint("Equal", 14, 16),
    Sketcher.Constraint("Equal", 18, 20),
    Sketcher.Constraint("Equal", 22, 24),
    Sketcher.Constraint("Equal", 26, 28),
    Sketcher.Constraint("Equal", 30, 32),
    Sketcher.Constraint("Equal", 34, 36),
    Sketcher.Constraint("Equal", 38, 40),
    Sketcher.Constraint("Equal", 42, 44),
    Sketcher.Constraint("Symmetric", 12, 3, 14, 3, -1, 1),
    Sketcher.Constraint("Symmetric", 10, 3, 16, 3, -1, 1),
    Sketcher.Constraint("Symmetric", 6, 3, 20, 3, -1, 1),
    Sketcher.Constraint("Symmetric", 2, 3, 24, 3, -1, 1),
    Sketcher.Constraint("Symmetric", 28, 3, 32, 3, -1, 1),
    Sketcher.Constraint("Horizontal", 0, 3, 4, 3),
    Sketcher.Constraint("Horizontal", 2, 3, 6, 3),
    Sketcher.Constraint("Horizontal", 4, 3, 8, 3),
    Sketcher.Constraint("Horizontal", 6, 3, 10, 3),
    Sketcher.Constraint("Horizontal", 8, 3, 12, 3),
    Sketcher.Constraint("Horizontal", 10, 3, 14, 3),
    Sketcher.Constraint("Horizontal", 14, 3, 18, 3),
    Sketcher.Constraint("Horizontal", 18, 3, 22, 3),
    Sketcher.Constraint("Horizontal", 22, 3, 26, 3),
    Sketcher.Constraint("Horizontal", 24, 3, 28, 3),
    Sketcher.Constraint("Horizontal", 26, 3, 30, 3),
    Sketcher.Constraint("Horizontal", 32, 3, 36, 3),
    Sketcher.Constraint("Horizontal", 34, 3, 38, 3),
    Sketcher.Constraint("Horizontal", 36, 3, 40, 3),
    Sketcher.Constraint("Horizontal", 38, 3, 42, 3),
    Sketcher.Constraint("Horizontal", 40, 3, 44, 3),
    Sketcher.Constraint("Horizontal", 42, 3, 46, 3),
    Sketcher.Constraint("Radius", 0, Q("1.5 mm")),
    Sketcher.Constraint("DistanceY", 1, 1, 1, 2, Q("100 mm")),
    Sketcher.Constraint("DistanceY", 33, 2, 33, 1, Q("45 mm")),
    Sketcher.Constraint("DistanceX", 0, 3, -1, 1, Q("30 mm")),
    Sketcher.Constraint("DistanceX", 4, 3, -1, 1, Q("20 mm")),
    Sketcher.Constraint("DistanceX", 8, 3, -1, 1, Q("10 mm")),
    Sketcher.Constraint("DistanceX", -1, 1, 28, 3, Q("40 mm")),
    Sketcher.Constraint("DistanceX", 36, 3, -1, 1, Q("50 mm")),
    Sketcher.Constraint("DistanceX", 40, 3, -1, 1, Q("60 mm")),
    Sketcher.Constraint("DistanceX", 44, 3, -1, 1, Q("70 mm")),
])
pocket9 = doc.addObject("PartDesign::Pocket", "Pocket008")
body.addObject(pocket9)
pocket9.Profile = sketch16
pocket9.Length = 5
pocket9.Reversed = True

# Sketch on XY plane
sketch17 = doc.addObject("Sketcher::SketchObject", "Sketch016")
body.addObject(sketch17)
sketch17.AttachmentSupport = (doc.XY_Plane, [""])
sketch17.MapMode = "FlatFace"
sketch17.AttachmentOffset = App.Placement(App.Vector(0, 0, 3), App.Rotation())
add_polygon(sketch17, [(-83, 57), (-83, 50), (-74, 50), (-74, 57)])  # lines 0-3
add_polygon(sketch17, [(58, 57), (58, 50), (67, 50), (67, 57)])  # lines 4-7
add_polygon(sketch17, [(58, -50), (58, -57), (67, -57), (67, -50)])  # lines 8-11
add_polygon(sketch17, [(-83, -50), (-83, -57), (-74, -57), (-74, -50)])  # lines 12-15
sketch17.addConstraint([
    Sketcher.Constraint("Vertical", 0),
    Sketcher.Constraint("Horizontal", 1),
    Sketcher.Constraint("Vertical", 2),
    Sketcher.Constraint("Horizontal", 3),
    Sketcher.Constraint("Vertical", 4),
    Sketcher.Constraint("Horizontal", 5),
    Sketcher.Constraint("Vertical", 6),
    Sketcher.Constraint("Horizontal", 7),
    Sketcher.Constraint("Vertical", 8),
    Sketcher.Constraint("Horizontal", 9),
    Sketcher.Constraint("Vertical", 10),
    Sketcher.Constraint("Horizontal", 11),
    Sketcher.Constraint("Vertical", 12),
    Sketcher.Constraint("Horizontal", 13),
    Sketcher.Constraint("Vertical", 14),
    Sketcher.Constraint("Horizontal", 15),
    Sketcher.Constraint("Symmetric", 7, 2, 8, 2, -1),
    Sketcher.Constraint("Symmetric", 5, 2, 10, 2, -1),
    Sketcher.Constraint("Symmetric", 3, 2, 12, 2, -1),
    Sketcher.Constraint("Symmetric", 1, 2, 14, 2, -1),
    Sketcher.Constraint("Horizontal", 1, 2, 4, 2),
    Sketcher.Constraint("Horizontal", 3, 2, 6, 2),
    Sketcher.Constraint("Equal", 3, 5),
    Sketcher.Constraint("DistanceX", 1, 1, 1, 2, Q("9 mm")),
    Sketcher.Constraint("DistanceY", 0, 2, 0, 1, Q("7 mm")),
    Sketcher.Constraint("DistanceX", 0, 2, -1, 1, Q("83 mm")),
    Sketcher.Constraint("DistanceY", -1, 1, 0, 2, Q("50 mm")),
    Sketcher.Constraint("DistanceX", -1, 1, 4, 2, Q("58 mm")),
])
pocket10 = doc.addObject("PartDesign::Pocket", "Pocket009")
body.addObject(pocket10)
pocket10.Profile = sketch17
pocket10.Length = 1

# Sketch on XY plane
sketch18 = doc.addObject("Sketcher::SketchObject", "Sketch017")
body.addObject(sketch18)
sketch18.AttachmentSupport = (doc.XY_Plane, [""])
sketch18.MapMode = "FlatFace"
sketch18.AttachmentOffset = App.Placement(App.Vector(0, 0, 3), App.Rotation())
add_polygon(sketch18, [(-91, 62), (-91, -62), (75, -62), (75, 62)])  # lines 0-3
add_polygon(sketch18, [(74, -60), (-90, -60), (-90, 60), (74, 60)])  # lines 4-7
sketch18.addConstraint([
    Sketcher.Constraint("Vertical", 0),
    Sketcher.Constraint("Horizontal", 1),
    Sketcher.Constraint("Vertical", 2),
    Sketcher.Constraint("Horizontal", 3),
    Sketcher.Constraint("Horizontal", 4),
    Sketcher.Constraint("Vertical", 5),
    Sketcher.Constraint("Horizontal", 6),
    Sketcher.Constraint("Vertical", 7),
    Sketcher.Constraint("DistanceY", 5, 1, 5, 2, Q("120 mm")),
    Sketcher.Constraint("DistanceX", 1, 1, 1, 2, Q("166.6 mm")),
    Sketcher.Constraint("DistanceX", 4, 2, 4, 1, Q("163.6 mm")),
    Sketcher.Constraint("DistanceY", 0, 2, 0, 1, Q("123.6 mm")),
    Sketcher.Constraint("DistanceY", 4, 2, -1, 1, Q("60 mm")),
    Sketcher.Constraint("DistanceX", 0, 2, -1, 1, Q("91.3 mm")),
    Sketcher.Constraint("DistanceY", 0, 2, -1, 1, Q("61.8 mm")),
    Sketcher.Constraint("DistanceX", 4, 2, -1, 1, Q("89.8 mm")),
])
pad8 = doc.addObject("PartDesign::Pad", "Pad007")
body.addObject(pad8)
pad8.Profile = sketch18
pad8.Length = 1.3
pad8.Reversed = True
body2 = doc.addObject("PartDesign::Body", "Body001")
doc.recompute()

body.Placement = App.Placement(App.Vector(0, 0, 35), App.Rotation(App.Vector(0, 0, 1), 0))
boolean = doc.addObject("PartDesign::Boolean", "Boolean")
body2.addObject(boolean)
boolean.Type = "Fuse"
boolean.addObjects([body])

doc.recompute()
